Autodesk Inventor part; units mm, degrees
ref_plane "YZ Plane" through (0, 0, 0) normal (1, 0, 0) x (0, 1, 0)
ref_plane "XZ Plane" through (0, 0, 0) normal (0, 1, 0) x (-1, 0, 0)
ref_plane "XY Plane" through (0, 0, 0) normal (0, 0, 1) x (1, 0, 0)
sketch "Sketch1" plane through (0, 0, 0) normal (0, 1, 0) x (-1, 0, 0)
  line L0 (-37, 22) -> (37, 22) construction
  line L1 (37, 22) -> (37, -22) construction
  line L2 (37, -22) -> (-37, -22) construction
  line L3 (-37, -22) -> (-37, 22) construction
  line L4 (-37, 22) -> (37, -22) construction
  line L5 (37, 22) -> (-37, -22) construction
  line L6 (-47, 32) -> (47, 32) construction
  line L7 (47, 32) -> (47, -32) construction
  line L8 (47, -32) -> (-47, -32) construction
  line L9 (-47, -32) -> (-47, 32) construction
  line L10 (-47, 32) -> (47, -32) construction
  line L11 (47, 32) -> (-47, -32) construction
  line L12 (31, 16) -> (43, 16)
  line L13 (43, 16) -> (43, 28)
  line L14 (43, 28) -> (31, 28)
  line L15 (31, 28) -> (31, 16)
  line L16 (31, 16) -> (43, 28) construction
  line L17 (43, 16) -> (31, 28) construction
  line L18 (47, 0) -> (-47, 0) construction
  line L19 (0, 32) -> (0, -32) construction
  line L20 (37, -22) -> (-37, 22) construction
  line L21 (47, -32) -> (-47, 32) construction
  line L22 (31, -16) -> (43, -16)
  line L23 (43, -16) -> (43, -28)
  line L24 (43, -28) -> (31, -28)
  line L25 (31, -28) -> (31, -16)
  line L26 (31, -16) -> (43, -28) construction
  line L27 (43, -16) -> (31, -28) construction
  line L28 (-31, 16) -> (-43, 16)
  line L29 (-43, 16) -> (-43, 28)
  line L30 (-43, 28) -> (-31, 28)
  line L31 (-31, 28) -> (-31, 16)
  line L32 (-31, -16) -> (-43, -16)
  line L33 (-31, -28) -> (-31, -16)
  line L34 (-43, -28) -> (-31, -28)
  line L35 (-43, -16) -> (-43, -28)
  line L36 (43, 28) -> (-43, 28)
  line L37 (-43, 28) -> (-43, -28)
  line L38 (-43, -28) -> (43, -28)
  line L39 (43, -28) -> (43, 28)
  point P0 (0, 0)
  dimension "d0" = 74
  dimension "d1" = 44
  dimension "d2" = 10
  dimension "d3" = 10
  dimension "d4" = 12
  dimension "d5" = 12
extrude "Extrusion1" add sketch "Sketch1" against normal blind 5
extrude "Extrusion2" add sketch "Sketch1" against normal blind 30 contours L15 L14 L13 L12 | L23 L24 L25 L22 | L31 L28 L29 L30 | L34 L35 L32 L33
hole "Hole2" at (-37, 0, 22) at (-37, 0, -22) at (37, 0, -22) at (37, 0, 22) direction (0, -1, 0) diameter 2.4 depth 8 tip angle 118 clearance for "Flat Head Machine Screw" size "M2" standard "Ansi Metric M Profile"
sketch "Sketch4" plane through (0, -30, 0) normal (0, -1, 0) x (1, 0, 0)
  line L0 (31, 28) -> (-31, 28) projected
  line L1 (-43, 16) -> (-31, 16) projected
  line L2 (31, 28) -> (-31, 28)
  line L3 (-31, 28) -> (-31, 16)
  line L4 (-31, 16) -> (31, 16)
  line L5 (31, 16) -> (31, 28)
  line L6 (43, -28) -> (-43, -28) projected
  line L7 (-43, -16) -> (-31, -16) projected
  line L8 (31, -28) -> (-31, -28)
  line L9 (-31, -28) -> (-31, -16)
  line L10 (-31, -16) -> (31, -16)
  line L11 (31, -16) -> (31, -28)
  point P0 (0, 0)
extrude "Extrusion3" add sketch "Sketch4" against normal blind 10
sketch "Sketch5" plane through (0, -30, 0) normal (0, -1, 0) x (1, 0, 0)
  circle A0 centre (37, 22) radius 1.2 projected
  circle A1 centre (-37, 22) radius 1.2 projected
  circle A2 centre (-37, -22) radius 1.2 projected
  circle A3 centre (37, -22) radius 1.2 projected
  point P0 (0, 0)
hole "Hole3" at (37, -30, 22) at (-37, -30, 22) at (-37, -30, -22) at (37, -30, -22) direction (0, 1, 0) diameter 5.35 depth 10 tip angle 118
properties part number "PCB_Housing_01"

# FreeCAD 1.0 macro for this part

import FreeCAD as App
import Part
import Sketcher

V = App.Vector
Q = App.Units.Quantity


def add_polygon(sketch, points):
    """Adds a closed chain of lines whose ends are joined by coincident constraints."""
    first, n = sketch.GeometryCount, len(points)
    for a, b in zip(points, points[1:] + points[:1]):
        sketch.addGeometry(Part.LineSegment(App.Vector(*a, 0), App.Vector(*b, 0)), False)
    for i in range(n):
        sketch.addConstraint(Sketcher.Constraint("Coincident", first + i, 2, first + (i + 1) % n, 1))

doc = App.newDocument("Part")
body = doc.addObject("PartDesign::Body", "Body")

sketch1 = body.newObject("Sketcher::SketchObject", "Sketch")
sketch1.AttachmentSupport = (doc.getObject("XZ_Plane"), [""])
sketch1.MapMode = "FlatFace"
add_polygon(sketch1, [(-43, 28), (43, 28), (43, -28), (-43, -28)])
sketch1.addConstraint(Sketcher.Constraint("Horizontal", 0))
sketch1.addConstraint(Sketcher.Constraint("Vertical", 1))
sketch1.addConstraint(Sketcher.Constraint("Horizontal", 2))
sketch1.addConstraint(Sketcher.Constraint("Vertical", 3))
sketch1.addConstraint(Sketcher.Constraint("Symmetric", 0, 2, 2, 2, -1, 1))
sketch1.addConstraint(Sketcher.Constraint("DistanceX", 0, 1, 0, 2, Q("86 mm")))
sketch1.addConstraint(Sketcher.Constraint("DistanceY", 1, 2, 1, 1, Q("56 mm")))
pad1 = body.newObject("PartDesign::Pad", "Pad")
pad1.Profile = sketch1
pad1.Length = 5

sketch2 = body.newObject("Sketcher::SketchObject", "Sketch001")
sketch2.AttachmentSupport = (doc.getObject("XZ_Plane"), [""])
sketch2.MapMode = "FlatFace"
add_polygon(sketch2, [(-31, 28), (-31, 16), (-43, 16), (-43, 28)])
add_polygon(sketch2, [(-43, -28), (-43, -16), (-31, -16), (-31, -28)])
add_polygon(sketch2, [(31, 16), (31, 28), (43, 28), (43, 16)])
add_polygon(sketch2, [(43, -28), (31, -28), (31, -16), (43, -16)])
sketch2.addConstraint(Sketcher.Constraint("Vertical", 0))
sketch2.addConstraint(Sketcher.Constraint("Horizontal", 1))
sketch2.addConstraint(Sketcher.Constraint("Vertical", 2))
sketch2.addConstraint(Sketcher.Constraint("Horizontal", 3))
sketch2.addConstraint(Sketcher.Constraint("Vertical", 4))
sketch2.addConstraint(Sketcher.Constraint("Horizontal", 5))
sketch2.addConstraint(Sketcher.Constraint("Vertical", 6))
sketch2.addConstraint(Sketcher.Constraint("Horizontal", 7))
sketch2.addConstraint(Sketcher.Constraint("Vertical", 8))
sketch2.addConstraint(Sketcher.Constraint("Horizontal", 9))
sketch2.addConstraint(Sketcher.Constraint("Vertical", 10))
sketch2.addConstraint(Sketcher.Constraint("Horizontal", 11))
sketch2.addConstraint(Sketcher.Constraint("Horizontal", 12))
sketch2.addConstraint(Sketcher.Constraint("Vertical", 13))
sketch2.addConstraint(Sketcher.Constraint("Horizontal", 14))
sketch2.addConstraint(Sketcher.Constraint("Vertical", 15))
sketch2.addConstraint(Sketcher.Constraint("Symmetric", 6, 2, 8, 2, -1, 1))
sketch2.addConstraint(Sketcher.Constraint("Symmetric", 4, 2, 10, 2, -1, 1))
sketch2.addConstraint(Sketcher.Constraint("Symmetric", 3, 2, 12, 2, -1, 1))
sketch2.addConstraint(Sketcher.Constraint("Symmetric", 1, 2, 14, 2, -1, 1))
sketch2.addConstraint(Sketcher.Constraint("Symmetric", 3, 2, 8, 2, -2))
sketch2.addConstraint(Sketcher.Constraint("Symmetric", 1, 2, 10, 2, -2))
sketch2.addConstraint(Sketcher.Constraint("Equal", 14, 0))
sketch2.addConstraint(Sketcher.Constraint("DistanceX", 1, 2, 1, 1, Q("12 mm")))
sketch2.addConstraint(Sketcher.Constraint("DistanceY", 4, 2, 2, 2, Q("44 mm")))
sketch2.addConstraint(Sketcher.Constraint("DistanceX", 2, 2, 8, 2, Q("74 mm")))
pad2 = body.newObject("PartDesign::Pad", "Pad001")
pad2.Profile = sketch2
pad2.Length = 30

sketch3 = body.newObject("Sketcher::SketchObject", "Sketch002")
sketch3.AttachmentSupport = (doc.getObject("XZ_Plane"), [""])
sketch3.MapMode = "FlatFace"
sketch3.addGeometry(Part.Circle(V(-37, 22, 0), V(0, 0, 1), 1.2), False)
sketch3.addGeometry(Part.Circle(V(-37, -22, 0), V(0, 0, 1), 1.2), False)
sketch3.addGeometry(Part.Circle(V(37, -22, 0), V(0, 0, 1), 1.2), False)
sketch3.addGeometry(Part.Circle(V(37, 22, 0), V(0, 0, 1), 1.2), False)
sketch3.addConstraint(Sketcher.Constraint("Equal", 0, 1))
sketch3.addConstraint(Sketcher.Constraint("Equal", 1, 2))
sketch3.addConstraint(Sketcher.Constraint("Equal", 2, 3))
sketch3.addConstraint(Sketcher.Constraint("Symmetric", 0, 3, 2, 3, -1, 1))
sketch3.addConstraint(Sketcher.Constraint("Symmetric", 1, 3, 3, 3, -1, 1))
sketch3.addConstraint(Sketcher.Constraint("Symmetric", 1, 3, 2, 3, -2))
sketch3.addConstraint(Sketcher.Constraint("Diameter", 0, Q("2.4 mm")))
sketch3.addConstraint(Sketcher.Constraint("DistanceX", 0, 3, -1, 1, Q("37 mm")))
sketch3.addConstraint(Sketcher.Constraint("DistanceY", -1, 1, 0, 3, Q("22 mm")))
doc.recompute()
hole = body.newObject("PartDesign::Hole", "Hole")
hole.Profile = sketch3
hole.ThreadType = "None"
hole.Diameter = 2.4
hole.DepthType = "Dimension"
hole.Depth = 8
hole.DrillPoint = "Angled"
hole.DrillPointAngle = 118
hole.Reversed = True

sketch4 = body.newObject("Sketcher::SketchObject", "Sketch003")
sketch4.AttachmentSupport = (doc.getObject("XZ_Plane"), [""])
sketch4.MapMode = "FlatFace"
sketch4.AttachmentOffset = App.Placement(V(0, 0, 30), App.Rotation())
add_polygon(sketch4, [(31, 16), (31, 28), (-31, 28), (-31, 16)])
add_polygon(sketch4, [(-31, -28), (31, -28), (31, -16), (-31, -16)])
sketch4.addConstraint(Sketcher.Constraint("Vertical", 0))
sketch4.addConstraint(Sketcher.Constraint("Horizontal", 1))
sketch4.addConstraint(Sketcher.Constraint("Vertical", 2))
sketch4.addConstraint(Sketcher.Constraint("Horizontal", 3))
sketch4.addConstraint(Sketcher.Constraint("Horizontal", 4))
sketch4.addConstraint(Sketcher.Constraint("Vertical", 5))
sketch4.addConstraint(Sketcher.Constraint("Horizontal", 6))
sketch4.addConstraint(Sketcher.Constraint("Vertical", 7))
sketch4.addConstraint(Sketcher.Constraint("Symmetric", 1, 2, 4, 2, -1, 1))
sketch4.addConstraint(Sketcher.Constraint("Symmetric", 3, 2, 6, 2, -1, 1))
sketch4.addConstraint(Sketcher.Constraint("Vertical", 3, 2, 4, 2))
sketch4.addConstraint(Sketcher.Constraint("DistanceX", 1, 2, 1, 1, Q("62 mm")))
sketch4.addConstraint(Sketcher.Constraint("DistanceY", 0, 1, 0, 2, Q("12 mm")))
sketch4.addConstraint(Sketcher.Constraint("DistanceY", -1, 1, 0, 2, Q("28 mm")))
pad3 = body.newObject("PartDesign::Pad", "Pad002")
pad3.Profile = sketch4
pad3.Length = 10
pad3.Reversed = True

sketch5 = body.newObject("Sketcher::SketchObject", "Sketch004")
sketch5.AttachmentSupport = (doc.getObject("XZ_Plane"), [""])
sketch5.MapMode = "FlatFace"
sketch5.AttachmentOffset = App.Placement(V(0, 0, 30), App.Rotation())
sketch5.addGeometry(Part.Circle(V(37, 22, 0), V(0, 0, 1), 2.675), False)
sketch5.addGeometry(Part.Circle(V(-37, 22, 0), V(0, 0, 1), 2.675), False)
sketch5.addGeometry(Part.Circle(V(-37, -22, 0), V(0, 0, 1), 2.675), False)
sketch5.addGeometry(Part.Circle(V(37, -22, 0), V(0, 0, 1), 2.675), False)
sketch5.addConstraint(Sketcher.Constraint("Equal", 0, 1))
sketch5.addConstraint(Sketcher.Constraint("Equal", 1, 2))
sketch5.addConstraint(Sketcher.Constraint("Equal", 2, 3))
sketch5.addConstraint(Sketcher.Constraint("Symmetric", 0, 3, 2, 3, -1, 1))
sketch5.addConstraint(Sketcher.Constraint("Symmetric", 1, 3, 3, 3, -1, 1))
sketch5.addConstraint(Sketcher.Constraint("Symmetric", 0, 3, 1, 3, -2))
sketch5.addConstraint(Sketcher.Constraint("Diameter", 0, Q("5.35 mm")))
sketch5.addConstraint(Sketcher.Constraint("DistanceX", -1, 1, 0, 3, Q("37 mm")))
sketch5.addConstraint(Sketcher.Constraint("DistanceY", -1, 1, 0, 3, Q("22 mm")))
doc.recompute()
hole2 = body.newObject("PartDesign::Hole", "Hole001")
hole2.Profile = sketch5
hole2.ThreadType = "None"
hole2.Diameter = 5.35
hole2.DepthType = "Dimension"
hole2.Depth = 10
hole2.DrillPoint = "Angled"
hole2.DrillPointAngle = 118

doc.recompute()
